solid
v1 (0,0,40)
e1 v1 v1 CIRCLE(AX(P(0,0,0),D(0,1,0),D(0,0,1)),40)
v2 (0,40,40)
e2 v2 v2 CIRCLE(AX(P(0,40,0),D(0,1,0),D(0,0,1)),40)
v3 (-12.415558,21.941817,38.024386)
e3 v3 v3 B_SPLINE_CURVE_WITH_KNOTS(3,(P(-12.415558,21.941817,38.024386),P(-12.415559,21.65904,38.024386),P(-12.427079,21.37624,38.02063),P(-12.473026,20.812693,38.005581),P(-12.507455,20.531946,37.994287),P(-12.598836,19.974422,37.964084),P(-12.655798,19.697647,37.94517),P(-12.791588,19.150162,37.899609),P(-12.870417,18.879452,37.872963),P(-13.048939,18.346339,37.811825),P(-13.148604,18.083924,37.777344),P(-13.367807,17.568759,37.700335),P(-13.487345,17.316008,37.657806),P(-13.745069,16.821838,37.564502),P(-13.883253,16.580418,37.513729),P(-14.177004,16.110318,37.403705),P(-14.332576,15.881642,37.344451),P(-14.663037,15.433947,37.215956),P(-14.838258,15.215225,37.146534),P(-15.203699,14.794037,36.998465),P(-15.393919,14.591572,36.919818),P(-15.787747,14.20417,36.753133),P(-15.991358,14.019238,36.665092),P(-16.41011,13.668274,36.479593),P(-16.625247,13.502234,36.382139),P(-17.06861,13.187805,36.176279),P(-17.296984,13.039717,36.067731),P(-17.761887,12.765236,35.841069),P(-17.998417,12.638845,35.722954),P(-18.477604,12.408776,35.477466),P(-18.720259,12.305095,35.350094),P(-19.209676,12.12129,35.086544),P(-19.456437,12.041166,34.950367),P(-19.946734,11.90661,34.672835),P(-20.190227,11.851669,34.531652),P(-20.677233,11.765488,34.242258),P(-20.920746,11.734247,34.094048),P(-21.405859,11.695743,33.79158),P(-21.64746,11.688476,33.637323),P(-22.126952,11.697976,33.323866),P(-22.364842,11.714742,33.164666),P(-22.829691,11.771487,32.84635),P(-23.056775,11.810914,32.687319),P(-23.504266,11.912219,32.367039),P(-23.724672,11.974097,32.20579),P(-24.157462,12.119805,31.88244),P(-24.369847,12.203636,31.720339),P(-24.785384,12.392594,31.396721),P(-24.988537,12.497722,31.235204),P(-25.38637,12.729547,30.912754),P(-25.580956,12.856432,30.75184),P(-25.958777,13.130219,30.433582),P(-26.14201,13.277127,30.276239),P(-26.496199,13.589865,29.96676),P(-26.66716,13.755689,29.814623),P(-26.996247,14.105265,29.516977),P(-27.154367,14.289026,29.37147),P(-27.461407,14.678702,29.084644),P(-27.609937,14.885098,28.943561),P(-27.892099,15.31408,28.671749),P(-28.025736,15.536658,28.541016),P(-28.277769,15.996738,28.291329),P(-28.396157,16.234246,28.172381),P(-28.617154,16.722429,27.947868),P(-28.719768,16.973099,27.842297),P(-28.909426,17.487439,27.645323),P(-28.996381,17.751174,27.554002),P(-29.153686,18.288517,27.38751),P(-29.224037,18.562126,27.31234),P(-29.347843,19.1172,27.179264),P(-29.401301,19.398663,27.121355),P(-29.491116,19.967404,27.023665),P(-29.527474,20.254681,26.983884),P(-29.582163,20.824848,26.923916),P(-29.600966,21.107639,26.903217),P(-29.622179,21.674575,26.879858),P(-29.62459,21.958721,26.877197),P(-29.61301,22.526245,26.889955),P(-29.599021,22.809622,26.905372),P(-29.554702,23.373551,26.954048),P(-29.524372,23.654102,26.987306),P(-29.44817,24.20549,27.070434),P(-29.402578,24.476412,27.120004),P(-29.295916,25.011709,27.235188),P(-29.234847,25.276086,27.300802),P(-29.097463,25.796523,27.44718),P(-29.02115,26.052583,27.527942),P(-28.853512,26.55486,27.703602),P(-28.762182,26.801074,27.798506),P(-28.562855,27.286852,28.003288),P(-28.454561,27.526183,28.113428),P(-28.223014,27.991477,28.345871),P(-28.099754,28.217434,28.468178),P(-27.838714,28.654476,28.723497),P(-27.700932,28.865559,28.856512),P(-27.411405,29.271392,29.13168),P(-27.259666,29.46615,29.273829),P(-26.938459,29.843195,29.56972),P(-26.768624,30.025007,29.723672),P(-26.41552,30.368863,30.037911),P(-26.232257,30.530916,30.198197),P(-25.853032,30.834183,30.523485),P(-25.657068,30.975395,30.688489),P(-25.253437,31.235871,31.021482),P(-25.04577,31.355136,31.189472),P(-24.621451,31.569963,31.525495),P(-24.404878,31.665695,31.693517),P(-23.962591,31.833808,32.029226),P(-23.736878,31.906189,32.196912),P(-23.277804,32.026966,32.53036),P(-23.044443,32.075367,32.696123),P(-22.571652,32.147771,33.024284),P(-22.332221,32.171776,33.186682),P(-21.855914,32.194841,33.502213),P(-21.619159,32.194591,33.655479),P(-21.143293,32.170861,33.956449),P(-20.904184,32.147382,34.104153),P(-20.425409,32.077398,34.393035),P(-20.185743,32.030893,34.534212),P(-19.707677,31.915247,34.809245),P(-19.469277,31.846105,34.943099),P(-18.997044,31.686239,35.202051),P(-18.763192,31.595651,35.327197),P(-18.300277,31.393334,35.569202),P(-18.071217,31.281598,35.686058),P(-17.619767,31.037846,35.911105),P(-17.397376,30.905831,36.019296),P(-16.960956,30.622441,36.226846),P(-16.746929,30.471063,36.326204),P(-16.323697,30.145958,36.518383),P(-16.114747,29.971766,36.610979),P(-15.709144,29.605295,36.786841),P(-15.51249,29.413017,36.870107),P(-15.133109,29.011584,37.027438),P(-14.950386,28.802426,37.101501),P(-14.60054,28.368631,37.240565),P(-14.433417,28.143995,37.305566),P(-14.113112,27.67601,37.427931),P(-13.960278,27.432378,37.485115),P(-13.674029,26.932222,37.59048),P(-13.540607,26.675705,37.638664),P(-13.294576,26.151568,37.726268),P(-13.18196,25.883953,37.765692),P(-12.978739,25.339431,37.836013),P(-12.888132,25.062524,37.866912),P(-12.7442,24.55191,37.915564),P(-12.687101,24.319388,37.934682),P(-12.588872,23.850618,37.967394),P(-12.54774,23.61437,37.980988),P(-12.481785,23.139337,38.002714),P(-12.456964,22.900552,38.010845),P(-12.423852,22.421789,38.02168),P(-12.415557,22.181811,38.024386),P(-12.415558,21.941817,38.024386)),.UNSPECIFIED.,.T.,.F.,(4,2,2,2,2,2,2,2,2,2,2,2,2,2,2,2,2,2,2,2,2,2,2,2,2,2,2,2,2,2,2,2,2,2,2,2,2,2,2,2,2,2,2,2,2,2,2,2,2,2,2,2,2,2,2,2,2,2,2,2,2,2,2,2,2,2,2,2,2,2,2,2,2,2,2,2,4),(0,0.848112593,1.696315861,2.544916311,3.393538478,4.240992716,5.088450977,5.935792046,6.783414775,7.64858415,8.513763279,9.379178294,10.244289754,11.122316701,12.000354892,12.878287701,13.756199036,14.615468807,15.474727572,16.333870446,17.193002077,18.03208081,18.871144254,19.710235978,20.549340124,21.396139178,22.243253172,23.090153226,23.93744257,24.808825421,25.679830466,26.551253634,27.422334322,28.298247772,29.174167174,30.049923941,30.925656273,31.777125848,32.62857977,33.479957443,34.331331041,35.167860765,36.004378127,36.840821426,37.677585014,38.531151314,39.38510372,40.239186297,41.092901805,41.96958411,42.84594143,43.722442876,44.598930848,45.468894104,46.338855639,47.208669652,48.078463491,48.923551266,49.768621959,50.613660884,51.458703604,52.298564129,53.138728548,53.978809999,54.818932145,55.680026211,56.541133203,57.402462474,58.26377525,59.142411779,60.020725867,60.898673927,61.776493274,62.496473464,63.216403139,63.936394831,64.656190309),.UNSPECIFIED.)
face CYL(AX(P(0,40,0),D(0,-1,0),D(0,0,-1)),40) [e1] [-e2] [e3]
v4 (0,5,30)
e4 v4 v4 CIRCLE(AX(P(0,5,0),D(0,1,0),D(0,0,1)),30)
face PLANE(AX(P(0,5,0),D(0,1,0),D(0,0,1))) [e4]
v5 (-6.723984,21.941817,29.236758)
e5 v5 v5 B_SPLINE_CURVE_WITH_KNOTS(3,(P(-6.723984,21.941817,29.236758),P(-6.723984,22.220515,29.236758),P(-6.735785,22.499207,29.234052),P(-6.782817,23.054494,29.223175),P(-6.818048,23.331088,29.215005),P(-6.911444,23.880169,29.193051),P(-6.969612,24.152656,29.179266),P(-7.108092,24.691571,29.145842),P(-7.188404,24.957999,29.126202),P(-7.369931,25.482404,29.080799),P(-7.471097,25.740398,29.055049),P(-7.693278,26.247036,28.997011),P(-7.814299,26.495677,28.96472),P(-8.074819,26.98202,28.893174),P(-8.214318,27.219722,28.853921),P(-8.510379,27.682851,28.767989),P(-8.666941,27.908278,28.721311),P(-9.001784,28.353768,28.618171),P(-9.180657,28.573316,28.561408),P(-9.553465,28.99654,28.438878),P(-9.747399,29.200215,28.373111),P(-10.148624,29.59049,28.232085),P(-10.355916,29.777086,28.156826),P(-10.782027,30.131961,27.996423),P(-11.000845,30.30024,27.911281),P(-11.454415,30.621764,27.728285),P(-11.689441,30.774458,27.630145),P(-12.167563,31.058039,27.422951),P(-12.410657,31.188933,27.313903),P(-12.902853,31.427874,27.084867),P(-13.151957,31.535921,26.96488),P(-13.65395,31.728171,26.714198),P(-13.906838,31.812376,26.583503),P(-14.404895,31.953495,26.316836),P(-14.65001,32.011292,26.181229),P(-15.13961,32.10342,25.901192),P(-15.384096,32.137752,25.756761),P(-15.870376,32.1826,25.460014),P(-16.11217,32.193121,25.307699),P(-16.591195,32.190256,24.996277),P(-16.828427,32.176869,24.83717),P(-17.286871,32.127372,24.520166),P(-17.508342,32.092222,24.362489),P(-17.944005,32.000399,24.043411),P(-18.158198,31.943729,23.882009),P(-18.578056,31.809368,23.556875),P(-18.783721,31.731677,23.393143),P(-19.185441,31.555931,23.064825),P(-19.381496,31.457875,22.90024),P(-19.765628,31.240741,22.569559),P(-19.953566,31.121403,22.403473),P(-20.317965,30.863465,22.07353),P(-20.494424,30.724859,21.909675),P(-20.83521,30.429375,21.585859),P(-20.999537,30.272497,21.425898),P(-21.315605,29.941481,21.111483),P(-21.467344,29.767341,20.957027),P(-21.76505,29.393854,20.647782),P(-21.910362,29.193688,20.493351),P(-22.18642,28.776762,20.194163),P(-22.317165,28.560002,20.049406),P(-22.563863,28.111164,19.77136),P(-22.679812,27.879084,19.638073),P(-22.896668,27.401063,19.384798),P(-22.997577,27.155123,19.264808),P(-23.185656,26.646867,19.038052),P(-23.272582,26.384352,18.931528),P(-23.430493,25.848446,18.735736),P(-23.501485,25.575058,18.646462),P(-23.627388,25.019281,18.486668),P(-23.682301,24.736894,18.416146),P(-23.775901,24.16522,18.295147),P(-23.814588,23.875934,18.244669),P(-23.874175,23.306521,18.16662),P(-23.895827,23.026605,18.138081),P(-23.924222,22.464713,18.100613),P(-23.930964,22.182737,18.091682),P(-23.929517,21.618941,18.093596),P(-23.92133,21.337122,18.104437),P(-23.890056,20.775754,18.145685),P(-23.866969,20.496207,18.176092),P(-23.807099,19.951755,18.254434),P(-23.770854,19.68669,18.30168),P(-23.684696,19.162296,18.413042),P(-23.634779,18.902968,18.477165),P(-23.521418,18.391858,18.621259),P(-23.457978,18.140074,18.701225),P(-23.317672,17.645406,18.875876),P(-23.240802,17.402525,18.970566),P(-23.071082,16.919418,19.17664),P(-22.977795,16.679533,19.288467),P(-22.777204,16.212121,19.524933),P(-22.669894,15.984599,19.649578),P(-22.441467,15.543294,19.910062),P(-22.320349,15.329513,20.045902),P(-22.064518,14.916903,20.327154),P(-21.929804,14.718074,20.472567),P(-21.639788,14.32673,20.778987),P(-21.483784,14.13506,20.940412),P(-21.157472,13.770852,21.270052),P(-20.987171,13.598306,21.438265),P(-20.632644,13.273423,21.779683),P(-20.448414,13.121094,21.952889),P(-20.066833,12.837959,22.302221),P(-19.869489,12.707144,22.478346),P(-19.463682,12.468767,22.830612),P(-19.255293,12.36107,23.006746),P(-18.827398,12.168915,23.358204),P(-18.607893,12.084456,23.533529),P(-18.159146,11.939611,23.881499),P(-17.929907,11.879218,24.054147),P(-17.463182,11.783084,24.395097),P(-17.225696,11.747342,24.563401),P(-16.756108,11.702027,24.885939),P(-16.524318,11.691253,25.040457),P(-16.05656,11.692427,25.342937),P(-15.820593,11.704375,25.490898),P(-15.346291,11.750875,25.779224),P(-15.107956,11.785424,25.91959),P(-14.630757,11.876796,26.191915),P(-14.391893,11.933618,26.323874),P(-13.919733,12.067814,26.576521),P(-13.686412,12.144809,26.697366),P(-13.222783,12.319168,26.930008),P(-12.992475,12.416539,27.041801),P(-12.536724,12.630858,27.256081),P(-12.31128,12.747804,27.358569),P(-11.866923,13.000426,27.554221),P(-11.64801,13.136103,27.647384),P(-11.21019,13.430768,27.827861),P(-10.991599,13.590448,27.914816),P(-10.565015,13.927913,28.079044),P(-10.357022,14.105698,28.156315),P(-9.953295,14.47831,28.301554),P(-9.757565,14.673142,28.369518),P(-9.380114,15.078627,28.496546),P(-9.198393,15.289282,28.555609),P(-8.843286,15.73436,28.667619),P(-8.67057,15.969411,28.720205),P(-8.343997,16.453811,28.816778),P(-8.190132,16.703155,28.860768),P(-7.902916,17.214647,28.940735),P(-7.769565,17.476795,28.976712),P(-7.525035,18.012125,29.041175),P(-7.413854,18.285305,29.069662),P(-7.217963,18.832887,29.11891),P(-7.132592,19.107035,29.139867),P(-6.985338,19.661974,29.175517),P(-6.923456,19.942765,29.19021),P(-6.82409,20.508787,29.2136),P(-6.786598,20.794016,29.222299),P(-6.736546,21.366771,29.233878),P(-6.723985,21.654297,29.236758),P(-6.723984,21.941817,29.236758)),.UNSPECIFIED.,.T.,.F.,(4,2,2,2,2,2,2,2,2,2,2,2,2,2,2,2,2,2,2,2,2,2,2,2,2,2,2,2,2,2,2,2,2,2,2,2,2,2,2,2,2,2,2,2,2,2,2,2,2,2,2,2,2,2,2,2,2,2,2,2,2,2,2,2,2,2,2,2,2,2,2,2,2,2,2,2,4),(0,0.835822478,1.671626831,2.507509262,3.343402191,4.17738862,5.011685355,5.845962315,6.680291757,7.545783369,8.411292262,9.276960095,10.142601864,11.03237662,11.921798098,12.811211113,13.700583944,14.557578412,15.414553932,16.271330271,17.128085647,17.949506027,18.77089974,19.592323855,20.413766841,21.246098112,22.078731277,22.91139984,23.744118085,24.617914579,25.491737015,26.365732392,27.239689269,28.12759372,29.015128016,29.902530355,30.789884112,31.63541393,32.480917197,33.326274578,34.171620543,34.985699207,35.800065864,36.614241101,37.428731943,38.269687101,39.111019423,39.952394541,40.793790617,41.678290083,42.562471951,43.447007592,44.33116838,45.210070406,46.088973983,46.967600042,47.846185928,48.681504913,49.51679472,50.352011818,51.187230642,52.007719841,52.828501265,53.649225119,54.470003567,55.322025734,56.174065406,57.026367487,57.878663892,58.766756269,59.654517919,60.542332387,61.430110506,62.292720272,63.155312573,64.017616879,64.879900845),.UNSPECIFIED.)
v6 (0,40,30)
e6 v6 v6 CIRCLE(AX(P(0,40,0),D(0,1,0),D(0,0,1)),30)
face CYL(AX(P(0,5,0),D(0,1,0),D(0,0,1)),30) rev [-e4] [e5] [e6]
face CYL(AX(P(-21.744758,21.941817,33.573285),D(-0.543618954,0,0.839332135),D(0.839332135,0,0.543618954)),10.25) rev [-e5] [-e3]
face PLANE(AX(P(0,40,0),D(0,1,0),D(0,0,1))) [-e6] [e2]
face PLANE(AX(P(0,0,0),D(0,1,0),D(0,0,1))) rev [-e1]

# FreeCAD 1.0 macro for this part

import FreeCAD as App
import Part
import Sketcher

V = App.Vector

doc = App.newDocument("Part")
body = doc.addObject("PartDesign::Body", "Body")

# Sketch on XZ plane
sketch1 = body.newObject("Sketcher::SketchObject", "Sketch")
sketch1.AttachmentSupport = (doc.getObject("XZ_Plane"), [""])
sketch1.MapMode = "FlatFace"
sketch1.addGeometry(Part.Circle(V(0, 0, 0), V(0, 0, 1), 40), False)
sketch1.addConstraint([
    Sketcher.Constraint("Coincident", 0, 3, -1, 1),
    Sketcher.Constraint("Diameter", 0, 80.0),
])
pad1 = body.newObject("PartDesign::Pad", "Pad")
pad1.Profile = sketch1
pad1.Length = 40
pad1.Reversed = True

# Sketch on XZ plane
sketch2 = body.newObject("Sketcher::SketchObject", "Sketch001")
sketch2.AttachmentSupport = (doc.getObject("XZ_Plane"), [""])
sketch2.MapMode = "FlatFace"
sketch2.AttachmentOffset = App.Placement(V(0, 0, -40), App.Rotation())
sketch2.addGeometry(Part.Circle(V(0, 0, 0), V(0, 0, 1), 30), False)
sketch2.addConstraint([
    Sketcher.Constraint("Coincident", 0, 3, -1, 1),
    Sketcher.Constraint("Diameter", 0, 60.0),
])
pocket1 = body.newObject("PartDesign::Pocket", "Pocket")
pocket1.Profile = sketch2
pocket1.Length = 35
pocket1.Reversed = True

# Sketch on an angled plane
sketch3 = body.newObject("Sketcher::SketchObject", "Sketch002")
sketch3.Placement = App.Placement(V(-21.744758, 21.941817, 33.573285), App.Rotation(V(0.839332135, 0, 0.543618954), V(0, 1, 0), V(-0.543618954, 0, 0.839332135), "ZXY"))
sketch3.addGeometry(Part.Circle(V(0, 0, 0), V(0, 0, 1), 10), False)
sketch3.addConstraint([
    Sketcher.Constraint("Coincident", 0, 3, -1, 1),
    Sketcher.Constraint("Diameter", 0, 20.5),
])
pocket2 = body.newObject("PartDesign::Pocket", "Pocket001")
pocket2.Profile = sketch3
pocket2.Type = "UpToFirst"

doc.recompute()
